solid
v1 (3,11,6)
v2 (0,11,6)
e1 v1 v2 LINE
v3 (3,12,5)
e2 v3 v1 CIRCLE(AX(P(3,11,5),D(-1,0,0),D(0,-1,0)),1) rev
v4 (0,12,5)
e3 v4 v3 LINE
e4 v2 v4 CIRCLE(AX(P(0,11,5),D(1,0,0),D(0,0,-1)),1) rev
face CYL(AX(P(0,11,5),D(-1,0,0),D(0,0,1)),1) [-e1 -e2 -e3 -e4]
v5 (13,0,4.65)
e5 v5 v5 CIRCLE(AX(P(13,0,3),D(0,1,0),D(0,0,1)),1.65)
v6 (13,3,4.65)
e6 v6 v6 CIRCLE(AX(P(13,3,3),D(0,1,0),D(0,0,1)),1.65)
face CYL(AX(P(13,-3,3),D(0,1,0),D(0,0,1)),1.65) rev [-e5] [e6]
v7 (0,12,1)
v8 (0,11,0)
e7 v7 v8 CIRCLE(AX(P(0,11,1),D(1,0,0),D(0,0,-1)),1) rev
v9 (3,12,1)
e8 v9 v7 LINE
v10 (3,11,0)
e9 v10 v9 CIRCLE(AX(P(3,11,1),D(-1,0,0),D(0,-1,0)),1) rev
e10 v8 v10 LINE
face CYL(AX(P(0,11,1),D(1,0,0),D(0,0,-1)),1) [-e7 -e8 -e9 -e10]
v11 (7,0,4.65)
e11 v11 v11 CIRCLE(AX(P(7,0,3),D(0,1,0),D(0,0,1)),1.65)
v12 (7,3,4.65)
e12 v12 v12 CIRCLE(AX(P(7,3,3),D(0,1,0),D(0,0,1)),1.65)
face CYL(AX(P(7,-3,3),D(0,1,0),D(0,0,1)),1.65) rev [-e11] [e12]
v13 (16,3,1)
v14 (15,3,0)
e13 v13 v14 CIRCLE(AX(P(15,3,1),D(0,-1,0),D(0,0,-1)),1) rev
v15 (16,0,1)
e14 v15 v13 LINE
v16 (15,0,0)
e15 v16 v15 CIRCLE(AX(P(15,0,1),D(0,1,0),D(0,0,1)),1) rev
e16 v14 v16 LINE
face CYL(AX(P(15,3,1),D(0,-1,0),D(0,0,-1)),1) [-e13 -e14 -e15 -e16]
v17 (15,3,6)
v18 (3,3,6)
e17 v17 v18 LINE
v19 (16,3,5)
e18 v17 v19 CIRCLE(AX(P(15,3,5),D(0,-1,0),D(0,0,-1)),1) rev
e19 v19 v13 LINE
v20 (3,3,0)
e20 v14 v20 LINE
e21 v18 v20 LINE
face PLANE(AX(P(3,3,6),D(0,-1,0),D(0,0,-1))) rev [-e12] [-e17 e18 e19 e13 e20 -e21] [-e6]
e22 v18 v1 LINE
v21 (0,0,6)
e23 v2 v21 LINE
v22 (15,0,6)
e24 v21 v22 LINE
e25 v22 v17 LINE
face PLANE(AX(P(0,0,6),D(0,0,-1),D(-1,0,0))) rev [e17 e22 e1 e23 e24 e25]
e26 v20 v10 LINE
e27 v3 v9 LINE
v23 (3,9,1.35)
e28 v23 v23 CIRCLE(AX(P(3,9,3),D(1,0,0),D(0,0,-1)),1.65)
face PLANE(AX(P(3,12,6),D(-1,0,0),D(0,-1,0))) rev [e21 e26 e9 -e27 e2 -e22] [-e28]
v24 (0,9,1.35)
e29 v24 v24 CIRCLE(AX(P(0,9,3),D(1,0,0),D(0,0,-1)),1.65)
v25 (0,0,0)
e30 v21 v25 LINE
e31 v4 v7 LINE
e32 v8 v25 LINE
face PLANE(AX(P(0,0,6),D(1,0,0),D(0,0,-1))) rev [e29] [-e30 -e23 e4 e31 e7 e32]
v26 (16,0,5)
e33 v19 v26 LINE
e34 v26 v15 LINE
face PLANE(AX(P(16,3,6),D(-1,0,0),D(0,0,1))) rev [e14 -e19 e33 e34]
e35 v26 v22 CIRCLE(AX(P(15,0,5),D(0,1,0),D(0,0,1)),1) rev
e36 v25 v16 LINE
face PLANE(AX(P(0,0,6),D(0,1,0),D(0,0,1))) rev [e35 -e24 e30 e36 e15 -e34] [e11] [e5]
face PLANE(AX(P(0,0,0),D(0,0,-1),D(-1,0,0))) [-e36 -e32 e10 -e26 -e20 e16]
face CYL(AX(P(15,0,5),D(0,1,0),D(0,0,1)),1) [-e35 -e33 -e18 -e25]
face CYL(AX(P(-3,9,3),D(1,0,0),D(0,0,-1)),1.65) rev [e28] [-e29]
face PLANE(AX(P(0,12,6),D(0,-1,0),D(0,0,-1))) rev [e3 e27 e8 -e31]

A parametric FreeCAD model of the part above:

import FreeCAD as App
import Part
import Sketcher

V = App.Vector


def edges_at(feature, points):
    """Names of the edges that pass closest to the given points."""
    edges = feature.Shape.Edges
    near = lambda p: min(range(len(edges)), key=lambda i: edges[i].distToShape(Part.Vertex(*p))[0])
    return sorted({f"Edge{near(p) + 1}" for p in points})

doc = App.newDocument("Part")
body = doc.addObject("PartDesign::Body", "Body")

sketch1 = doc.addObject("Sketcher::SketchObject", "Sketch")
body.addObject(sketch1)
sketch1.AttachmentSupport = (doc.XY_Plane, [""])
sketch1.MapMode = "FlatFace"
sketch1.addGeometry(Part.LineSegment(V(0, 0, 0), V(16, 0, 0)), False)
sketch1.addGeometry(Part.LineSegment(V(16, 0, 0), V(16, 3, 0)), False)
sketch1.addGeometry(Part.LineSegment(V(16, 3, 0), V(3, 3, 0)), False)
sketch1.addGeometry(Part.LineSegment(V(3, 3, 0), V(3, 12, 0)), False)
sketch1.addGeometry(Part.LineSegment(V(3, 12, 0), V(0, 12, 0)), False)
sketch1.addGeometry(Part.LineSegment(V(0, 12, 0), V(0, 0, 0)), False)
sketch1.addConstraint(Sketcher.Constraint("Coincident", 0, 2, 1, 1))
sketch1.addConstraint(Sketcher.Constraint("Coincident", 1, 2, 2, 1))
sketch1.addConstraint(Sketcher.Constraint("Coincident", 2, 2, 3, 1))
sketch1.addConstraint(Sketcher.Constraint("Coincident", 3, 2, 4, 1))
sketch1.addConstraint(Sketcher.Constraint("Coincident", 4, 2, 5, 1))
sketch1.addConstraint(Sketcher.Constraint("Coincident", 5, 2, 0, 1))
sketch1.addConstraint(Sketcher.Constraint("Horizontal", 0))
sketch1.addConstraint(Sketcher.Constraint("Vertical", 1))
sketch1.addConstraint(Sketcher.Constraint("Horizontal", 2))
sketch1.addConstraint(Sketcher.Constraint("Vertical", 3))
sketch1.addConstraint(Sketcher.Constraint("Horizontal", 4))
sketch1.addConstraint(Sketcher.Constraint("Vertical", 5))
sketch1.addConstraint(Sketcher.Constraint("Coincident", 5, 2, -1, 1))
sketch1.addConstraint(Sketcher.Constraint("Equal", 4, 1))
sketch1.addConstraint(Sketcher.Constraint("DistanceX", 0, 1, 0, 2, 16.0))
sketch1.addConstraint(Sketcher.Constraint("DistanceX", 2, 2, 2, 1, 13.0))
sketch1.addConstraint(Sketcher.Constraint("DistanceY", 3, 1, 3, 2, 9.0))
pad1 = doc.addObject("PartDesign::Pad", "Pad")
body.addObject(pad1)
pad1.Profile = sketch1
pad1.Length = 6

sketch2 = doc.addObject("Sketcher::SketchObject", "Sketch001")
body.addObject(sketch2)
sketch2.AttachmentSupport = (doc.YZ_Plane, [""])
sketch2.MapMode = "FlatFace"
sketch2.AttachmentOffset = App.Placement(V(0, 0, 3), App.Rotation())
sketch2.addGeometry(Part.Circle(V(9, 3, 0), V(0, 0, 1), 1.6), False)
sketch2.addConstraint(Sketcher.Constraint("Diameter", 0, 3.3))
sketch2.addConstraint(Sketcher.Constraint("DistanceX", -1, 1, 0, 3, 9.0))
sketch2.addConstraint(Sketcher.Constraint("DistanceY", -1, 1, 0, 3, 3.0))
pocket1 = doc.addObject("PartDesign::Pocket", "Pocket")
body.addObject(pocket1)
pocket1.Profile = sketch2
pocket1.Length = 6

sketch3 = doc.addObject("Sketcher::SketchObject", "Sketch002")
body.addObject(sketch3)
sketch3.AttachmentSupport = (doc.XZ_Plane, [""])
sketch3.MapMode = "FlatFace"
sketch3.AttachmentOffset = App.Placement(V(0, 0, -3), App.Rotation())
sketch3.addGeometry(Part.Circle(V(7, 3, 0), V(0, 0, 1), 1.6), False)
sketch3.addGeometry(Part.Circle(V(13, 3, 0), V(0, 0, 1), 1.6), False)
sketch3.addConstraint(Sketcher.Constraint("Equal", 0, 1))
sketch3.addConstraint(Sketcher.Constraint("Horizontal", 0, 3, 1, 3))
sketch3.addConstraint(Sketcher.Constraint("Diameter", 0, 3.3))
sketch3.addConstraint(Sketcher.Constraint("DistanceX", -1, 1, 0, 3, 7.0))
sketch3.addConstraint(Sketcher.Constraint("DistanceY", -1, 1, 0, 3, 3.0))
sketch3.addConstraint(Sketcher.Constraint("DistanceX", -1, 1, 1, 3, 13.0))
pocket2 = doc.addObject("PartDesign::Pocket", "Pocket001")
body.addObject(pocket2)
pocket2.Profile = sketch3
pocket2.Length = 6
pocket2.Reversed = True
doc.recompute()

fillet = doc.addObject("PartDesign::Fillet", "Fillet")
body.addObject(fillet)
fillet.Base = (pocket2, edges_at(pocket2, [
    (16, 1.5, 6),
    (1.5, 12, 6),
    (1.5, 12, 0),
    (16, 1.5, 0),
]))
fillet.Radius = 1

doc.recompute()
